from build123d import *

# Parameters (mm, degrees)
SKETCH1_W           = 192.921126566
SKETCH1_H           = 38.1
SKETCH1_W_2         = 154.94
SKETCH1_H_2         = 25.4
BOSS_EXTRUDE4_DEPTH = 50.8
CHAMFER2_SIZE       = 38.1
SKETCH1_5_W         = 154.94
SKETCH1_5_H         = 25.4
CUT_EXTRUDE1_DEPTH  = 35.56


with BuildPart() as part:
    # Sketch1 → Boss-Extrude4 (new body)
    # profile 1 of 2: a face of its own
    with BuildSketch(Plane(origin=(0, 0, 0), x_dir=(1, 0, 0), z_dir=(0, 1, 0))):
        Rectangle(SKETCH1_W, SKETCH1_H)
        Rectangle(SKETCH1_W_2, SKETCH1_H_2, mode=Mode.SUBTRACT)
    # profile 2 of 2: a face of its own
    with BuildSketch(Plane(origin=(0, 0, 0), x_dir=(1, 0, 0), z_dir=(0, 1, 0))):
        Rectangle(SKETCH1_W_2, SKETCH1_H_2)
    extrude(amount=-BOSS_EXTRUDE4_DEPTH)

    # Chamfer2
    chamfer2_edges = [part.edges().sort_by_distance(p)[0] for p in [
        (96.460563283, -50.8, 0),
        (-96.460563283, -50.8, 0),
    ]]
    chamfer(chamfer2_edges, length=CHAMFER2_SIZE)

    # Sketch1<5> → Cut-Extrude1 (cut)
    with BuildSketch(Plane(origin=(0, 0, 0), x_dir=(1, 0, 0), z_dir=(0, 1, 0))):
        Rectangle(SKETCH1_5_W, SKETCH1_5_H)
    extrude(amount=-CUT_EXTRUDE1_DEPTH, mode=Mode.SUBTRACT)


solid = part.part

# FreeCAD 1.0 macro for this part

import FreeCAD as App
import Part
import Sketcher

V = App.Vector
Q = App.Units.Quantity


def edges_at(feature, points):
    """Names of the edges that pass closest to the given points."""
    edges = feature.Shape.Edges
    near = lambda p: min(range(len(edges)), key=lambda i: edges[i].distToShape(Part.Vertex(*p))[0])
    return sorted({f"Edge{near(p) + 1}" for p in points})

doc = App.newDocument("Part")
body = doc.addObject("PartDesign::Body", "Body")

sketch1 = body.newObject("Sketcher::SketchObject", "Sketch")
sketch1.AttachmentSupport = (doc.getObject("XZ_Plane"), [""])
sketch1.MapMode = "FlatFace"
sketch1.addGeometry([
    Part.LineSegment(V(-96, -19, 0), V(-96, 19, 0)),
    Part.LineSegment(V(-96, 19, 0), V(96, 19, 0)),
    Part.LineSegment(V(96, 19, 0), V(96, -19, 0)),
    Part.LineSegment(V(96, -19, 0), V(-96, -19, 0)),
], False)
sketch1.addConstraint([
    Sketcher.Constraint("Coincident", 0, 2, 1, 1),
    Sketcher.Constraint("Coincident", 1, 2, 2, 1),
    Sketcher.Constraint("Coincident", 2, 2, 3, 1),
    Sketcher.Constraint("Coincident", 3, 2, 0, 1),
    Sketcher.Constraint("Vertical", 0),
    Sketcher.Constraint("Horizontal", 1),
    Sketcher.Constraint("Vertical", 2),
    Sketcher.Constraint("Horizontal", 3),
    Sketcher.Constraint("Symmetric", 0, 2, 2, 2, -1, 1),
    Sketcher.Constraint("DistanceY", 0, 1, 0, 2, Q("1.5 in")),
    Sketcher.Constraint("DistanceX", 1, 1, 1, 2, Q("192.921127 mm")),
])
pad1 = body.newObject("PartDesign::Pad", "Pad")
pad1.Profile = sketch1
pad1.Length = Q("2 in")
doc.recompute()

chamfer = body.newObject("PartDesign::Chamfer", "Chamfer")
chamfer.Base = (pad1, edges_at(pad1, [(96.461, -50.8, 0), (-96.461, -50.8, 0)]))
chamfer.Size = Q("1.5 in")

sketch2 = body.newObject("Sketcher::SketchObject", "Sketch001")
sketch2.AttachmentSupport = (doc.getObject("XZ_Plane"), [""])
sketch2.MapMode = "FlatFace"
sketch2.addGeometry([
    Part.LineSegment(V(-77, -13, 0), V(-77, 13, 0)),
    Part.LineSegment(V(-77, 13, 0), V(77, 13, 0)),
    Part.LineSegment(V(77, 13, 0), V(77, -13, 0)),
    Part.LineSegment(V(77, -13, 0), V(-77, -13, 0)),
], False)
sketch2.addConstraint([
    Sketcher.Constraint("Coincident", 0, 2, 1, 1),
    Sketcher.Constraint("Coincident", 1, 2, 2, 1),
    Sketcher.Constraint("Coincident", 2, 2, 3, 1),
    Sketcher.Constraint("Coincident", 3, 2, 0, 1),
    Sketcher.Constraint("Vertical", 0),
    Sketcher.Constraint("Horizontal", 1),
    Sketcher.Constraint("Vertical", 2),
    Sketcher.Constraint("Horizontal", 3),
    Sketcher.Constraint("Symmetric", 0, 2, 2, 2, -1, 1),
    Sketcher.Constraint("DistanceY", 0, 1, 0, 2, Q("1 in")),
    Sketcher.Constraint("DistanceX", 1, 1, 1, 2, Q("6.1 in")),
])
pocket1 = body.newObject("PartDesign::Pocket", "Pocket")
pocket1.Profile = sketch2
pocket1.Length = Q("1.4 in")
pocket1.Reversed = True

doc.recompute()
